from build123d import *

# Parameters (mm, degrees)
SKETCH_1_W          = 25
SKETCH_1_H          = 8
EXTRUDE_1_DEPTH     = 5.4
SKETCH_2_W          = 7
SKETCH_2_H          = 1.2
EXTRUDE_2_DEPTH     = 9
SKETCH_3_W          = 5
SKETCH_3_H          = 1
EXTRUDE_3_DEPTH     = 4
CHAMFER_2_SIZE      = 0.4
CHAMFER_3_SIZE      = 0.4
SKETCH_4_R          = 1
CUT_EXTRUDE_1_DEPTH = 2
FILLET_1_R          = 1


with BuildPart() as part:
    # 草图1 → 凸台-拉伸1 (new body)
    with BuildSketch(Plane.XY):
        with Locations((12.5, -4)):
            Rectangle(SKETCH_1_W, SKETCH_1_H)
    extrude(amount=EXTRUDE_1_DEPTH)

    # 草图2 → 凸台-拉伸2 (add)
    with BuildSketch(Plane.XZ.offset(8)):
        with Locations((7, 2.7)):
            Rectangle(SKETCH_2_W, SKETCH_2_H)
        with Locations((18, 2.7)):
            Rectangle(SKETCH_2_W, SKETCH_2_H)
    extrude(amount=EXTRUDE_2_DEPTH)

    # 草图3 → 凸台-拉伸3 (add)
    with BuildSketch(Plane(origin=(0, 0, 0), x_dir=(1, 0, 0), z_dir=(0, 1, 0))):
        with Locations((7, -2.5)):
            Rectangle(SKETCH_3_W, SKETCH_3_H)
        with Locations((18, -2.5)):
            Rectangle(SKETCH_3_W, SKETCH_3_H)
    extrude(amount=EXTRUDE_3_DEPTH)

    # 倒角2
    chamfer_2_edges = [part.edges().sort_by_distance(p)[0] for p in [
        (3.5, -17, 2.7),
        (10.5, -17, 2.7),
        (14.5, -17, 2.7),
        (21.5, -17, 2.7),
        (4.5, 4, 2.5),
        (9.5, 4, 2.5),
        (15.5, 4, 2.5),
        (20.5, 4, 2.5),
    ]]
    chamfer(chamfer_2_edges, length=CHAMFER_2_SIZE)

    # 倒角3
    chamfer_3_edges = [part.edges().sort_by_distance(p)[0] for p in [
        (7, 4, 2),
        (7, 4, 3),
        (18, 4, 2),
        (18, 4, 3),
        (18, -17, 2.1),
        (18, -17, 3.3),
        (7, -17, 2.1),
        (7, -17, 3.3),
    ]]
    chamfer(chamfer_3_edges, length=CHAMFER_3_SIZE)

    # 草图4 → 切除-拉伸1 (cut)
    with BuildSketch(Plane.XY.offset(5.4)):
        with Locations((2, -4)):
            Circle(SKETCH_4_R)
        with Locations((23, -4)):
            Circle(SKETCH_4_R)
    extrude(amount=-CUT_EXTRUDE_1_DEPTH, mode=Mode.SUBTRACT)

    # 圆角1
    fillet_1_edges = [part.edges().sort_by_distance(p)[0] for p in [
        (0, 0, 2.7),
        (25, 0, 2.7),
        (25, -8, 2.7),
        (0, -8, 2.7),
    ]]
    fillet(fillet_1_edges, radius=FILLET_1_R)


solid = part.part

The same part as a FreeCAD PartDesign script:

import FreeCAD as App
import Part
import Sketcher

V = App.Vector


def edges_at(feature, points):
    """Names of the edges that pass closest to the given points."""
    edges = feature.Shape.Edges
    near = lambda p: min(range(len(edges)), key=lambda i: edges[i].distToShape(Part.Vertex(*p))[0])
    return sorted({f"Edge{near(p) + 1}" for p in points})

doc = App.newDocument("Part")
params = doc.addObject("Spreadsheet::Sheet", "Params")
for row, (alias, value) in enumerate([
    ("sketch1_width", "25 mm"),
    ("sketch1_height", "8 mm"),
    ("pad1_length", "5.4 mm"),
    ("sketch2_width", "7 mm"),
    ("sketch2_height", "1.2 mm"),
    ("pad2_length", "9 mm"),
    ("sketch3_width", "5 mm"),
    ("sketch3_height", "1 mm"),
    ("pad3_length", "4 mm"),
    ("chamfer_size", "0.4 mm"),
    ("chamfer2_size", "0.4 mm"),
    ("sketch4_diameter", "2 mm"),
    ("pocket1_length", "2 mm"),
    ("fillet_radius", "1 mm"),
], start=1):
    params.set(f"A{row}", alias)
    params.set(f"B{row}", "=" + value)
    params.setAlias(f"B{row}", alias)

body = doc.addObject("PartDesign::Body", "Body")

# Sketch on XY plane
sketch1 = body.newObject("Sketcher::SketchObject", "Sketch")
sketch1.AttachmentSupport = (doc.getObject("XY_Plane"), [""])
sketch1.MapMode = "FlatFace"
sketch1.addGeometry(Part.LineSegment(V(0, 0, 0), V(0, -8, 0)), False)
sketch1.addGeometry(Part.LineSegment(V(0, -8, 0), V(25, -8, 0)), False)
sketch1.addGeometry(Part.LineSegment(V(25, -8, 0), V(25, 0, 0)), False)
sketch1.addGeometry(Part.LineSegment(V(25, 0, 0), V(0, 0, 0)), False)
sketch1.addConstraint(Sketcher.Constraint("Coincident", 0, 2, 1, 1))
sketch1.addConstraint(Sketcher.Constraint("Coincident", 1, 2, 2, 1))
sketch1.addConstraint(Sketcher.Constraint("Coincident", 2, 2, 3, 1))
sketch1.addConstraint(Sketcher.Constraint("Coincident", 3, 2, 0, 1))
sketch1.addConstraint(Sketcher.Constraint("Vertical", 0))
sketch1.addConstraint(Sketcher.Constraint("Horizontal", 1))
sketch1.addConstraint(Sketcher.Constraint("Vertical", 2))
sketch1.addConstraint(Sketcher.Constraint("Horizontal", 3))
sketch1.addConstraint(Sketcher.Constraint("Coincident", 3, 2, -1, 1))
sketch1.addConstraint(Sketcher.Constraint("DistanceX", 1, 1, 1, 2, 25.0))
sketch1.addConstraint(Sketcher.Constraint("DistanceY", 0, 2, 0, 1, 8.0))
sketch1.setExpression("Constraints[9]", "Params.sketch1_width")
sketch1.setExpression("Constraints[10]", "Params.sketch1_height")
pad1 = body.newObject("PartDesign::Pad", "Pad")
pad1.Profile = sketch1
pad1.setExpression("Length", "Params.pad1_length")

# Sketch on XZ plane
sketch2 = body.newObject("Sketcher::SketchObject", "Sketch001")
sketch2.AttachmentSupport = (doc.getObject("XZ_Plane"), [""])
sketch2.MapMode = "FlatFace"
sketch2.AttachmentOffset = App.Placement(V(0, 0, 8), App.Rotation())
sketch2.addGeometry(Part.LineSegment(V(3.5, 3.3, 0), V(3.5, 2.1, 0)), False)
sketch2.addGeometry(Part.LineSegment(V(3.5, 2.1, 0), V(10.5, 2.1, 0)), False)
sketch2.addGeometry(Part.LineSegment(V(10.5, 2.1, 0), V(10.5, 3.3, 0)), False)
sketch2.addGeometry(Part.LineSegment(V(10.5, 3.3, 0), V(3.5, 3.3, 0)), False)
sketch2.addGeometry(Part.LineSegment(V(14.5, 3.3, 0), V(14.5, 2.1, 0)), False)
sketch2.addGeometry(Part.LineSegment(V(14.5, 2.1, 0), V(21.5, 2.1, 0)), False)
sketch2.addGeometry(Part.LineSegment(V(21.5, 2.1, 0), V(21.5, 3.3, 0)), False)
sketch2.addGeometry(Part.LineSegment(V(21.5, 3.3, 0), V(14.5, 3.3, 0)), False)
sketch2.addConstraint(Sketcher.Constraint("Coincident", 0, 2, 1, 1))
sketch2.addConstraint(Sketcher.Constraint("Coincident", 1, 2, 2, 1))
sketch2.addConstraint(Sketcher.Constraint("Coincident", 2, 2, 3, 1))
sketch2.addConstraint(Sketcher.Constraint("Coincident", 3, 2, 0, 1))
sketch2.addConstraint(Sketcher.Constraint("Coincident", 4, 2, 5, 1))
sketch2.addConstraint(Sketcher.Constraint("Coincident", 5, 2, 6, 1))
sketch2.addConstraint(Sketcher.Constraint("Coincident", 6, 2, 7, 1))
sketch2.addConstraint(Sketcher.Constraint("Coincident", 7, 2, 4, 1))
sketch2.addConstraint(Sketcher.Constraint("Vertical", 0))
sketch2.addConstraint(Sketcher.Constraint("Horizontal", 1))
sketch2.addConstraint(Sketcher.Constraint("Vertical", 2))
sketch2.addConstraint(Sketcher.Constraint("Horizontal", 3))
sketch2.addConstraint(Sketcher.Constraint("Vertical", 4))
sketch2.addConstraint(Sketcher.Constraint("Horizontal", 5))
sketch2.addConstraint(Sketcher.Constraint("Vertical", 6))
sketch2.addConstraint(Sketcher.Constraint("Horizontal", 7))
sketch2.addConstraint(Sketcher.Constraint("Horizontal", 1, 2, 4, 2))
sketch2.addConstraint(Sketcher.Constraint("Horizontal", 3, 2, 6, 2))
sketch2.addConstraint(Sketcher.Constraint("Equal", 3, 5))
sketch2.addConstraint(Sketcher.Constraint("DistanceX", 1, 1, 1, 2, 7.0))
sketch2.addConstraint(Sketcher.Constraint("DistanceY", 0, 2, 0, 1, 1.2))
sketch2.addConstraint(Sketcher.Constraint("DistanceX", 1, 2, 4, 2, 4.0))
sketch2.addConstraint(Sketcher.Constraint("DistanceX", -1, 1, 0, 2, 3.5))
sketch2.addConstraint(Sketcher.Constraint("DistanceY", -1, 1, 0, 2, 2.1))
sketch2.setExpression("Constraints[19]", "Params.sketch2_width")
sketch2.setExpression("Constraints[20]", "Params.sketch2_height")
pad2 = body.newObject("PartDesign::Pad", "Pad001")
pad2.Profile = sketch2
pad2.setExpression("Length", "Params.pad2_length")

# Sketch on XZ plane
sketch3 = body.newObject("Sketcher::SketchObject", "Sketch002")
sketch3.AttachmentSupport = (doc.getObject("XZ_Plane"), [""])
sketch3.MapMode = "FlatFace"
sketch3.addGeometry(Part.LineSegment(V(4.5, 2, 0), V(4.5, 3, 0)), False)
sketch3.addGeometry(Part.LineSegment(V(4.5, 3, 0), V(9.5, 3, 0)), False)
sketch3.addGeometry(Part.LineSegment(V(9.5, 3, 0), V(9.5, 2, 0)), False)
sketch3.addGeometry(Part.LineSegment(V(9.5, 2, 0), V(4.5, 2, 0)), False)
sketch3.addGeometry(Part.LineSegment(V(15.5, 2, 0), V(15.5, 3, 0)), False)
sketch3.addGeometry(Part.LineSegment(V(15.5, 3, 0), V(20.5, 3, 0)), False)
sketch3.addGeometry(Part.LineSegment(V(20.5, 3, 0), V(20.5, 2, 0)), False)
sketch3.addGeometry(Part.LineSegment(V(20.5, 2, 0), V(15.5, 2, 0)), False)
sketch3.addConstraint(Sketcher.Constraint("Coincident", 0, 2, 1, 1))
sketch3.addConstraint(Sketcher.Constraint("Coincident", 1, 2, 2, 1))
sketch3.addConstraint(Sketcher.Constraint("Coincident", 2, 2, 3, 1))
sketch3.addConstraint(Sketcher.Constraint("Coincident", 3, 2, 0, 1))
sketch3.addConstraint(Sketcher.Constraint("Coincident", 4, 2, 5, 1))
sketch3.addConstraint(Sketcher.Constraint("Coincident", 5, 2, 6, 1))
sketch3.addConstraint(Sketcher.Constraint("Coincident", 6, 2, 7, 1))
sketch3.addConstraint(Sketcher.Constraint("Coincident", 7, 2, 4, 1))
sketch3.addConstraint(Sketcher.Constraint("Vertical", 0))
sketch3.addConstraint(Sketcher.Constraint("Horizontal", 1))
sketch3.addConstraint(Sketcher.Constraint("Vertical", 2))
sketch3.addConstraint(Sketcher.Constraint("Horizontal", 3))
sketch3.addConstraint(Sketcher.Constraint("Vertical", 4))
sketch3.addConstraint(Sketcher.Constraint("Horizontal", 5))
sketch3.addConstraint(Sketcher.Constraint("Vertical", 6))
sketch3.addConstraint(Sketcher.Constraint("Horizontal", 7))
sketch3.addConstraint(Sketcher.Constraint("Horizontal", 1, 2, 4, 2))
sketch3.addConstraint(Sketcher.Constraint("Horizontal", 3, 2, 6, 2))
sketch3.addConstraint(Sketcher.Constraint("Equal", 3, 5))
sketch3.addConstraint(Sketcher.Constraint("DistanceX", 1, 1, 1, 2, 5.0))
sketch3.addConstraint(Sketcher.Constraint("DistanceY", 0, 1, 0, 2, 1.0))
sketch3.addConstraint(Sketcher.Constraint("DistanceY", -1, 1, 0, 2, 3.0))
sketch3.addConstraint(Sketcher.Constraint("DistanceX", 1, 2, 4, 2, 6.0))
sketch3.addConstraint(Sketcher.Constraint("DistanceX", -1, 1, 0, 2, 4.5))
sketch3.setExpression("Constraints[19]", "Params.sketch3_width")
sketch3.setExpression("Constraints[20]", "Params.sketch3_height")
pad3 = body.newObject("PartDesign::Pad", "Pad002")
pad3.Profile = sketch3
pad3.setExpression("Length", "Params.pad3_length")
pad3.Reversed = True
doc.recompute()

chamfer = body.newObject("PartDesign::Chamfer", "Chamfer")
chamfer.Base = (pad3, edges_at(pad3, [
    (3.5, -17, 2.7),
    (10.5, -17, 2.7),
    (14.5, -17, 2.7),
    (21.5, -17, 2.7),
    (4.5, 4, 2.5),
    (9.5, 4, 2.5),
    (15.5, 4, 2.5),
    (20.5, 4, 2.5),
]))
chamfer.setExpression("Size", "Params.chamfer_size")
doc.recompute()

chamfer2 = body.newObject("PartDesign::Chamfer", "Chamfer001")
chamfer2.Base = (chamfer, edges_at(chamfer, [
    (7, 4, 2),
    (7, 4, 3),
    (18, 4, 2),
    (18, 4, 3),
    (18, -17, 2.1),
    (18, -17, 3.3),
    (7, -17, 2.1),
    (7, -17, 3.3),
]))
chamfer2.setExpression("Size", "Params.chamfer2_size")

# Sketch on XY plane
sketch4 = body.newObject("Sketcher::SketchObject", "Sketch003")
sketch4.AttachmentSupport = (doc.getObject("XY_Plane"), [""])
sketch4.MapMode = "FlatFace"
sketch4.AttachmentOffset = App.Placement(V(0, 0, 5.4), App.Rotation())
sketch4.addGeometry(Part.Circle(V(2, -4, 0), V(0, 0, 1), 1), False)
sketch4.addGeometry(Part.Circle(V(23, -4, 0), V(0, 0, 1), 1), False)
sketch4.addConstraint(Sketcher.Constraint("Equal", 0, 1))
sketch4.addConstraint(Sketcher.Constraint("Horizontal", 0, 3, 1, 3))
sketch4.addConstraint(Sketcher.Constraint("Diameter", 0, 2.0))
sketch4.addConstraint(Sketcher.Constraint("DistanceX", -1, 1, 0, 3, 2.0))
sketch4.addConstraint(Sketcher.Constraint("DistanceY", 0, 3, -1, 1, 4.0))
sketch4.addConstraint(Sketcher.Constraint("DistanceX", -1, 1, 1, 3, 23.0))
sketch4.setExpression("Constraints[2]", "Params.sketch4_diameter")
pocket1 = body.newObject("PartDesign::Pocket", "Pocket")
pocket1.Profile = sketch4
pocket1.setExpression("Length", "Params.pocket1_length")
doc.recompute()

fillet = body.newObject("PartDesign::Fillet", "Fillet")
fillet.Base = (pocket1, edges_at(pocket1, [
    (0, 0, 2.7),
    (25, 0, 2.7),
    (25, -8, 2.7),
    (0, -8, 2.7),
]))
fillet.setExpression("Radius", "Params.fillet_radius")

doc.recompute()
